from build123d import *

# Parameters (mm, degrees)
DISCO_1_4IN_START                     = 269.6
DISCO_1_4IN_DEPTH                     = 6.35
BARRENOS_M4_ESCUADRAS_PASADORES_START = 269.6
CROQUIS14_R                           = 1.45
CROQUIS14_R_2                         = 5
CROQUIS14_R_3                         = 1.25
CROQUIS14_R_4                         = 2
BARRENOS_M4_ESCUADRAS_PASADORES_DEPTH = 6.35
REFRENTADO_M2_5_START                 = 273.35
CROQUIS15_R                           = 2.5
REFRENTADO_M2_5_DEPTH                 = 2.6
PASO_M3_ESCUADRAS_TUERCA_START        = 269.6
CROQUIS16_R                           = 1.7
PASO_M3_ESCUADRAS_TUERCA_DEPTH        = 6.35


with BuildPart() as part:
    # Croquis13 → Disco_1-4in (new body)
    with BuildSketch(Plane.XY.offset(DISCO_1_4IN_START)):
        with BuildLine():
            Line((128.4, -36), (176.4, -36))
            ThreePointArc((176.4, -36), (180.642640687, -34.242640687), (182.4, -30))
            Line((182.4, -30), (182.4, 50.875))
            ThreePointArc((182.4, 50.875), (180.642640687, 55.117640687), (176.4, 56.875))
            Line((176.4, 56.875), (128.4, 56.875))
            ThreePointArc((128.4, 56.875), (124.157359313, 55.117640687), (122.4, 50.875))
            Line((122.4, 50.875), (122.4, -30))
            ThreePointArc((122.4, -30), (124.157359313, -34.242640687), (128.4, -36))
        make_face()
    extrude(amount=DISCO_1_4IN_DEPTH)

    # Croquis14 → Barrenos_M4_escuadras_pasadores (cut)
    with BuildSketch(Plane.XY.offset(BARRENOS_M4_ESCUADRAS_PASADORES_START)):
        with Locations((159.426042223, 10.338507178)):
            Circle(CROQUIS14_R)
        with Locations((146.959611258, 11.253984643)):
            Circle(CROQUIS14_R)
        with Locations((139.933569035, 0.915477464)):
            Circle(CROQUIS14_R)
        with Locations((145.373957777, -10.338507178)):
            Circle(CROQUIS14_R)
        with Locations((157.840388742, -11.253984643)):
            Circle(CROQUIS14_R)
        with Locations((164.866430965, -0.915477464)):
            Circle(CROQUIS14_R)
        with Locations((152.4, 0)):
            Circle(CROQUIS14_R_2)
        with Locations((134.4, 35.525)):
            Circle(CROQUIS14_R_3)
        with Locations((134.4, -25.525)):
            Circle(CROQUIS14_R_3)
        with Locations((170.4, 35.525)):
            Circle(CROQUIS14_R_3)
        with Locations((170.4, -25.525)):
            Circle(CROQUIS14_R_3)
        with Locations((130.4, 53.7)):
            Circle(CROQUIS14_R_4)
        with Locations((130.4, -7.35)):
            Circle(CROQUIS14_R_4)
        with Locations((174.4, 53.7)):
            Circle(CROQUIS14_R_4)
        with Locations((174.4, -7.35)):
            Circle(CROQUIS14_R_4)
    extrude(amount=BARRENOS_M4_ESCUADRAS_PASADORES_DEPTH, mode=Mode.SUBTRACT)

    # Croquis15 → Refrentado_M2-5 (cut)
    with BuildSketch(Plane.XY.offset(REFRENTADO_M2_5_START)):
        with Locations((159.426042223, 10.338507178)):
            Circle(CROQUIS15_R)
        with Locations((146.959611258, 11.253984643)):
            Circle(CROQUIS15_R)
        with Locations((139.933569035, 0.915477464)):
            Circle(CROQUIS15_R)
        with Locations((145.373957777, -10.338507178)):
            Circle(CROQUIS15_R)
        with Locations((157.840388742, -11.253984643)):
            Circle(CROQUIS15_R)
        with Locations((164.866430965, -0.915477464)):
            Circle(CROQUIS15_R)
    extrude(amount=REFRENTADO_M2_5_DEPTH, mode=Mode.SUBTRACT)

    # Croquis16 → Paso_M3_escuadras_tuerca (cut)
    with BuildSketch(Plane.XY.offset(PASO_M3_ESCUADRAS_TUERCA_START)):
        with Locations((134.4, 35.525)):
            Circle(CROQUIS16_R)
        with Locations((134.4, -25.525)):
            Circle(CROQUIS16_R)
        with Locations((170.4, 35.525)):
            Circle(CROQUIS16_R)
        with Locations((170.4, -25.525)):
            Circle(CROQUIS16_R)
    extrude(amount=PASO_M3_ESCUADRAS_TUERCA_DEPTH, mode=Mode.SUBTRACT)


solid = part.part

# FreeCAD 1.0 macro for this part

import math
import FreeCAD as App
import Part
import Sketcher
from FreeCAD import Vector
Q = App.Units.Quantity

doc = App.newDocument("Part")
body = doc.addObject("PartDesign::Body", "Body")

# Sketch on XY plane
sketch1 = doc.addObject("Sketcher::SketchObject", "Sketch")
body.addObject(sketch1)
sketch1.AttachmentSupport = (doc.XY_Plane, [""])
sketch1.MapMode = "FlatFace"
sketch1.AttachmentOffset = App.Placement(Vector(0, 0, 269.6), App.Rotation())
sketch1.addGeometry(Part.LineSegment(Vector(128.4, -36, 0), Vector(176.4, -36, 0)), False)
sketch1.addGeometry(Part.ArcOfCircle(Part.Circle(Vector(176.4, -30, 0), Vector(0, 0, 1), 6), math.radians(-90), math.radians(0)), False)
sketch1.addGeometry(Part.LineSegment(Vector(182.4, -30, 0), Vector(182.4, 50.875, 0)), False)
sketch1.addGeometry(Part.ArcOfCircle(Part.Circle(Vector(176.4, 50.875, 0), Vector(0, 0, 1), 6), math.radians(0), math.radians(90)), False)
sketch1.addGeometry(Part.LineSegment(Vector(176.4, 56.875, 0), Vector(128.4, 56.875, 0)), False)
sketch1.addGeometry(Part.ArcOfCircle(Part.Circle(Vector(128.4, 50.875, 0), Vector(0, 0, 1), 6), math.radians(90), math.radians(180)), False)
sketch1.addGeometry(Part.LineSegment(Vector(122.4, 50.875, 0), Vector(122.4, -30, 0)), False)
sketch1.addGeometry(Part.ArcOfCircle(Part.Circle(Vector(128.4, -30, 0), Vector(0, 0, 1), 6), math.radians(180), math.radians(270)), False)
sketch1.addConstraint(Sketcher.Constraint("Tangent", 0, 2, 1, 1))
sketch1.addConstraint(Sketcher.Constraint("Tangent", 1, 2, 2, 1))
sketch1.addConstraint(Sketcher.Constraint("Tangent", 2, 2, 3, 1))
sketch1.addConstraint(Sketcher.Constraint("Tangent", 3, 2, 4, 1))
sketch1.addConstraint(Sketcher.Constraint("Tangent", 4, 2, 5, 1))
sketch1.addConstraint(Sketcher.Constraint("Tangent", 5, 2, 6, 1))
sketch1.addConstraint(Sketcher.Constraint("Tangent", 6, 2, 7, 1))
sketch1.addConstraint(Sketcher.Constraint("Tangent", 7, 2, 0, 1))
sketch1.addConstraint(Sketcher.Constraint("Horizontal", 0))
sketch1.addConstraint(Sketcher.Constraint("Vertical", 2))
sketch1.addConstraint(Sketcher.Constraint("Horizontal", 4))
sketch1.addConstraint(Sketcher.Constraint("Vertical", 6))
sketch1.addConstraint(Sketcher.Constraint("Equal", 1, 3))
sketch1.addConstraint(Sketcher.Constraint("Equal", 3, 5))
sketch1.addConstraint(Sketcher.Constraint("Equal", 5, 7))
sketch1.addConstraint(Sketcher.Constraint("Radius", 1, Q("6 mm")))
sketch1.addConstraint(Sketcher.Constraint("DistanceX", 0, 1, 0, 2, Q("48 mm")))
sketch1.addConstraint(Sketcher.Constraint("DistanceY", 1, 3, -1, 1, Q("30 mm")))
sketch1.addConstraint(Sketcher.Constraint("DistanceX", -1, 1, 1, 3, Q("176.4 mm")))
sketch1.addConstraint(Sketcher.Constraint("DistanceY", 2, 1, 2, 2, Q("80.875 mm")))
pad1 = doc.addObject("PartDesign::Pad", "Pad")
body.addObject(pad1)
pad1.Profile = sketch1
pad1.Length = 6.35

# Sketch on XY plane
sketch2 = doc.addObject("Sketcher::SketchObject", "Sketch001")
body.addObject(sketch2)
sketch2.AttachmentSupport = (doc.XY_Plane, [""])
sketch2.MapMode = "FlatFace"
sketch2.AttachmentOffset = App.Placement(Vector(0, 0, 269.6), App.Rotation())
sketch2.addGeometry(Part.Circle(Vector(159.426042, 10.338507, 0), Vector(0, 0, 1), 1.45), False)
sketch2.addGeometry(Part.Circle(Vector(146.959611, 11.253985, 0), Vector(0, 0, 1), 1.45), False)
sketch2.addGeometry(Part.Circle(Vector(139.933569, 0.915477, 0), Vector(0, 0, 1), 1.45), False)
sketch2.addGeometry(Part.Circle(Vector(145.373958, -10.338507, 0), Vector(0, 0, 1), 1.45), False)
sketch2.addGeometry(Part.Circle(Vector(157.840389, -11.253985, 0), Vector(0, 0, 1), 1.45), False)
sketch2.addGeometry(Part.Circle(Vector(164.866431, -0.915477, 0), Vector(0, 0, 1), 1.45), False)
sketch2.addGeometry(Part.Circle(Vector(152.4, 0, 0), Vector(0, 0, 1), 5), False)
sketch2.addGeometry(Part.Circle(Vector(134.4, 35.525, 0), Vector(0, 0, 1), 1.25), False)
sketch2.addGeometry(Part.Circle(Vector(134.4, -25.525, 0), Vector(0, 0, 1), 1.25), False)
sketch2.addGeometry(Part.Circle(Vector(170.4, 35.525, 0), Vector(0, 0, 1), 1.25), False)
sketch2.addGeometry(Part.Circle(Vector(170.4, -25.525, 0), Vector(0, 0, 1), 1.25), False)
sketch2.addGeometry(Part.Circle(Vector(130.4, 53.7, 0), Vector(0, 0, 1), 2), False)
sketch2.addGeometry(Part.Circle(Vector(130.4, -7.35, 0), Vector(0, 0, 1), 2), False)
sketch2.addGeometry(Part.Circle(Vector(174.4, 53.7, 0), Vector(0, 0, 1), 2), False)
sketch2.addGeometry(Part.Circle(Vector(174.4, -7.35, 0), Vector(0, 0, 1), 2), False)
sketch2.addConstraint(Sketcher.Constraint("Equal", 0, 1))
sketch2.addConstraint(Sketcher.Constraint("Equal", 1, 2))
sketch2.addConstraint(Sketcher.Constraint("Equal", 2, 3))
sketch2.addConstraint(Sketcher.Constraint("Equal", 3, 4))
sketch2.addConstraint(Sketcher.Constraint("Equal", 4, 5))
sketch2.addConstraint(Sketcher.Constraint("Equal", 7, 8))
sketch2.addConstraint(Sketcher.Constraint("Equal", 8, 9))
sketch2.addConstraint(Sketcher.Constraint("Equal", 9, 10))
sketch2.addConstraint(Sketcher.Constraint("Equal", 11, 12))
sketch2.addConstraint(Sketcher.Constraint("Equal", 12, 13))
sketch2.addConstraint(Sketcher.Constraint("Equal", 13, 14))
sketch2.addConstraint(Sketcher.Constraint("PointOnObject", 6, 3, -1))
sketch2.addConstraint(Sketcher.Constraint("Horizontal", 7, 3, 9, 3))
sketch2.addConstraint(Sketcher.Constraint("Horizontal", 8, 3, 10, 3))
sketch2.addConstraint(Sketcher.Constraint("Horizontal", 11, 3, 13, 3))
sketch2.addConstraint(Sketcher.Constraint("Horizontal", 12, 3, 14, 3))
sketch2.addConstraint(Sketcher.Constraint("Vertical", 7, 3, 8, 3))
sketch2.addConstraint(Sketcher.Constraint("Vertical", 9, 3, 10, 3))
sketch2.addConstraint(Sketcher.Constraint("Vertical", 11, 3, 12, 3))
sketch2.addConstraint(Sketcher.Constraint("Vertical", 13, 3, 14, 3))
sketch2.addConstraint(Sketcher.Constraint("Diameter", 6, Q("10 mm")))
sketch2.addConstraint(Sketcher.Constraint("Diameter", 11, Q("4 mm")))
sketch2.addConstraint(Sketcher.Constraint("Diameter", 0, Q("2.9 mm")))
sketch2.addConstraint(Sketcher.Constraint("Diameter", 7, Q("2.5 mm")))
sketch2.addConstraint(Sketcher.Constraint("DistanceX", 7, 3, 6, 3, Q("18 mm")))
sketch2.addConstraint(Sketcher.Constraint("DistanceX", 7, 3, 9, 3, Q("36 mm")))
sketch2.addConstraint(Sketcher.Constraint("DistanceX", 11, 3, 7, 3, Q("4 mm")))
sketch2.addConstraint(Sketcher.Constraint("DistanceX", 9, 3, 13, 3, Q("4 mm")))
sketch2.addConstraint(Sketcher.Constraint("DistanceX", -1, 1, 6, 3, Q("152.4 mm")))
sketch2.addConstraint(Sketcher.Constraint("DistanceY", -1, 1, 11, 3, Q("53.7 mm")))
sketch2.addConstraint(Sketcher.Constraint("DistanceY", 12, 3, -1, 1, Q("7.35 mm")))
sketch2.addConstraint(Sketcher.Constraint("DistanceY", -1, 1, 7, 3, Q("35.525 mm")))
sketch2.addConstraint(Sketcher.Constraint("DistanceY", 8, 3, -1, 1, Q("25.525 mm")))
sketch2.addConstraint(Sketcher.Constraint("DistanceX", -1, 1, 1, 3, Q("146.959611 mm")))
sketch2.addConstraint(Sketcher.Constraint("DistanceX", -1, 1, 2, 3, Q("139.933569 mm")))
sketch2.addConstraint(Sketcher.Constraint("DistanceX", -1, 1, 4, 3, Q("157.840389 mm")))
sketch2.addConstraint(Sketcher.Constraint("DistanceX", -1, 1, 5, 3, Q("164.866431 mm")))
sketch2.addConstraint(Sketcher.Constraint("DistanceX", 1, 3, 0, 3, Q("12.466431 mm")))
sketch2.addConstraint(Sketcher.Constraint("DistanceY", 2, 3, 0, 3, Q("9.42303 mm")))
sketch2.addConstraint(Sketcher.Constraint("DistanceX", 2, 3, 3, 3, Q("5.440389 mm")))
sketch2.addConstraint(Sketcher.Constraint("DistanceY", 3, 3, 1, 3, Q("21.592492 mm")))
sketch2.addConstraint(Sketcher.Constraint("DistanceY", 4, 3, 0, 3, Q("21.592492 mm")))
sketch2.addConstraint(Sketcher.Constraint("DistanceY", 4, 3, 1, 3, Q("22.507969 mm")))
sketch2.addConstraint(Sketcher.Constraint("DistanceY", 3, 3, 5, 3, Q("9.42303 mm")))
sketch2.addConstraint(Sketcher.Constraint("DistanceY", -1, 1, 0, 3, Q("10.338507 mm")))
pocket1 = doc.addObject("PartDesign::Pocket", "Pocket")
body.addObject(pocket1)
pocket1.Profile = sketch2
pocket1.Length = 6.35
pocket1.Reversed = True

# Sketch on XY plane
sketch3 = doc.addObject("Sketcher::SketchObject", "Sketch002")
body.addObject(sketch3)
sketch3.AttachmentSupport = (doc.XY_Plane, [""])
sketch3.MapMode = "FlatFace"
sketch3.AttachmentOffset = App.Placement(Vector(0, 0, 273.35), App.Rotation())
sketch3.addGeometry(Part.Circle(Vector(159.426042, 10.338507, 0), Vector(0, 0, 1), 2.5), False)
sketch3.addGeometry(Part.Circle(Vector(146.959611, 11.253985, 0), Vector(0, 0, 1), 2.5), False)
sketch3.addGeometry(Part.Circle(Vector(139.933569, 0.915477, 0), Vector(0, 0, 1), 2.5), False)
sketch3.addGeometry(Part.Circle(Vector(145.373958, -10.338507, 0), Vector(0, 0, 1), 2.5), False)
sketch3.addGeometry(Part.Circle(Vector(157.840389, -11.253985, 0), Vector(0, 0, 1), 2.5), False)
sketch3.addGeometry(Part.Circle(Vector(164.866431, -0.915477, 0), Vector(0, 0, 1), 2.5), False)
sketch3.addConstraint(Sketcher.Constraint("Equal", 0, 1))
sketch3.addConstraint(Sketcher.Constraint("Equal", 1, 2))
sketch3.addConstraint(Sketcher.Constraint("Equal", 2, 3))
sketch3.addConstraint(Sketcher.Constraint("Equal", 3, 4))
sketch3.addConstraint(Sketcher.Constraint("Equal", 4, 5))
sketch3.addConstraint(Sketcher.Constraint("Diameter", 0, Q("5 mm")))
sketch3.addConstraint(Sketcher.Constraint("DistanceX", -1, 1, 1, 3, Q("146.959611 mm")))
sketch3.addConstraint(Sketcher.Constraint("DistanceX", -1, 1, 2, 3, Q("139.933569 mm")))
sketch3.addConstraint(Sketcher.Constraint("DistanceX", -1, 1, 4, 3, Q("157.840389 mm")))
sketch3.addConstraint(Sketcher.Constraint("DistanceX", -1, 1, 5, 3, Q("164.866431 mm")))
sketch3.addConstraint(Sketcher.Constraint("DistanceX", 1, 3, 0, 3, Q("12.466431 mm")))
sketch3.addConstraint(Sketcher.Constraint("DistanceY", 2, 3, 0, 3, Q("9.42303 mm")))
sketch3.addConstraint(Sketcher.Constraint("DistanceX", 2, 3, 3, 3, Q("5.440389 mm")))
sketch3.addConstraint(Sketcher.Constraint("DistanceY", 3, 3, 1, 3, Q("21.592492 mm")))
sketch3.addConstraint(Sketcher.Constraint("DistanceY", 4, 3, 0, 3, Q("21.592492 mm")))
sketch3.addConstraint(Sketcher.Constraint("DistanceY", 4, 3, 1, 3, Q("22.507969 mm")))
sketch3.addConstraint(Sketcher.Constraint("DistanceY", 3, 3, 5, 3, Q("9.42303 mm")))
sketch3.addConstraint(Sketcher.Constraint("DistanceY", -1, 1, 0, 3, Q("10.338507 mm")))
pocket2 = doc.addObject("PartDesign::Pocket", "Pocket001")
body.addObject(pocket2)
pocket2.Profile = sketch3
pocket2.Length = 2.6
pocket2.Reversed = True

# Sketch on XY plane
sketch4 = doc.addObject("Sketcher::SketchObject", "Sketch003")
body.addObject(sketch4)
sketch4.AttachmentSupport = (doc.XY_Plane, [""])
sketch4.MapMode = "FlatFace"
sketch4.AttachmentOffset = App.Placement(Vector(0, 0, 269.6), App.Rotation())
sketch4.addGeometry(Part.Circle(Vector(134.4, 35.525, 0), Vector(0, 0, 1), 1.7), False)
sketch4.addGeometry(Part.Circle(Vector(134.4, -25.525, 0), Vector(0, 0, 1), 1.7), False)
sketch4.addGeometry(Part.Circle(Vector(170.4, 35.525, 0), Vector(0, 0, 1), 1.7), False)
sketch4.addGeometry(Part.Circle(Vector(170.4, -25.525, 0), Vector(0, 0, 1), 1.7), False)
sketch4.addConstraint(Sketcher.Constraint("Equal", 0, 1))
sketch4.addConstraint(Sketcher.Constraint("Equal", 1, 2))
sketch4.addConstraint(Sketcher.Constraint("Equal", 2, 3))
sketch4.addConstraint(Sketcher.Constraint("Horizontal", 0, 3, 2, 3))
sketch4.addConstraint(Sketcher.Constraint("Horizontal", 1, 3, 3, 3))
sketch4.addConstraint(Sketcher.Constraint("Vertical", 0, 3, 1, 3))
sketch4.addConstraint(Sketcher.Constraint("Vertical", 2, 3, 3, 3))
sketch4.addConstraint(Sketcher.Constraint("Diameter", 0, Q("3.4 mm")))
sketch4.addConstraint(Sketcher.Constraint("DistanceX", 0, 3, 2, 3, Q("36 mm")))
sketch4.addConstraint(Sketcher.Constraint("DistanceX", -1, 1, 0, 3, Q("134.4 mm")))
sketch4.addConstraint(Sketcher.Constraint("DistanceY", 1, 3, 0, 3, Q("61.05 mm")))
sketch4.addConstraint(Sketcher.Constraint("DistanceY", -1, 1, 0, 3, Q("35.525 mm")))
pocket3 = doc.addObject("PartDesign::Pocket", "Pocket002")
body.addObject(pocket3)
pocket3.Profile = sketch4
pocket3.Length = 6.35
pocket3.Reversed = True

doc.recompute()
